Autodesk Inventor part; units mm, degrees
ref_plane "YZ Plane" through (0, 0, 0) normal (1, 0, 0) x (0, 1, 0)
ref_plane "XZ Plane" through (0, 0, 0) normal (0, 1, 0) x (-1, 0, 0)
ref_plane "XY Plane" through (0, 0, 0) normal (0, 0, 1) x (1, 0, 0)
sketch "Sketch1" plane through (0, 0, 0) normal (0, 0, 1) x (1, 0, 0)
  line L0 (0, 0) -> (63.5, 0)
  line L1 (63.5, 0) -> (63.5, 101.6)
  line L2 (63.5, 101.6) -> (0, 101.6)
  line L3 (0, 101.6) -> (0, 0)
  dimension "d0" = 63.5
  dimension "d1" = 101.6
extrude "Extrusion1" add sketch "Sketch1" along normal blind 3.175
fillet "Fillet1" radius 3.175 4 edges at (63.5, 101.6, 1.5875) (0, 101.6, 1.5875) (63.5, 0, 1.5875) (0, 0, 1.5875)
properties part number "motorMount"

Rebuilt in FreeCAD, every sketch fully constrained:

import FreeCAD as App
import Part
import Sketcher

V = App.Vector
Q = App.Units.Quantity


def edges_at(feature, points):
    """Names of the edges that pass closest to the given points."""
    edges = feature.Shape.Edges
    near = lambda p: min(range(len(edges)), key=lambda i: edges[i].distToShape(Part.Vertex(*p))[0])
    return sorted({f"Edge{near(p) + 1}" for p in points})


def add_polygon(sketch, points):
    """Adds a closed chain of lines whose ends are joined by coincident constraints."""
    first, n = sketch.GeometryCount, len(points)
    for a, b in zip(points, points[1:] + points[:1]):
        sketch.addGeometry(Part.LineSegment(App.Vector(*a, 0), App.Vector(*b, 0)), False)
    for i in range(n):
        sketch.addConstraint(Sketcher.Constraint("Coincident", first + i, 2, first + (i + 1) % n, 1))

doc = App.newDocument("Part")
body = doc.addObject("PartDesign::Body", "Body")

# Sketch on XY plane
sketch1 = doc.addObject("Sketcher::SketchObject", "Sketch")
body.addObject(sketch1)
sketch1.AttachmentSupport = (doc.XY_Plane, [""])
sketch1.MapMode = "FlatFace"
add_polygon(sketch1, [(0, 102), (0, 0), (64, 0), (64, 102)])  # lines 0-3
sketch1.addConstraint([
    Sketcher.Constraint("Vertical", 0),
    Sketcher.Constraint("Horizontal", 1),
    Sketcher.Constraint("Vertical", 2),
    Sketcher.Constraint("Horizontal", 3),
    Sketcher.Constraint("Coincident", 0, 2, -1, 1),
    Sketcher.Constraint("DistanceY", 0, 2, 0, 1, Q("4 in")),
    Sketcher.Constraint("DistanceX", 1, 1, 1, 2, Q("2.5 in")),
])
pad1 = doc.addObject("PartDesign::Pad", "Pad")
body.addObject(pad1)
pad1.Profile = sketch1
pad1.Length = Q("0.125 in")
doc.recompute()

fillet = doc.addObject("PartDesign::Fillet", "Fillet")
body.addObject(fillet)
fillet.Base = (pad1, edges_at(pad1, [
    (63.5, 101.6, 1.587),
    (0, 101.6, 1.587),
    (63.5, 0, 1.587),
    (0, 0, 1.587),
]))
fillet.Radius = Q("0.125 in")

doc.recompute()
